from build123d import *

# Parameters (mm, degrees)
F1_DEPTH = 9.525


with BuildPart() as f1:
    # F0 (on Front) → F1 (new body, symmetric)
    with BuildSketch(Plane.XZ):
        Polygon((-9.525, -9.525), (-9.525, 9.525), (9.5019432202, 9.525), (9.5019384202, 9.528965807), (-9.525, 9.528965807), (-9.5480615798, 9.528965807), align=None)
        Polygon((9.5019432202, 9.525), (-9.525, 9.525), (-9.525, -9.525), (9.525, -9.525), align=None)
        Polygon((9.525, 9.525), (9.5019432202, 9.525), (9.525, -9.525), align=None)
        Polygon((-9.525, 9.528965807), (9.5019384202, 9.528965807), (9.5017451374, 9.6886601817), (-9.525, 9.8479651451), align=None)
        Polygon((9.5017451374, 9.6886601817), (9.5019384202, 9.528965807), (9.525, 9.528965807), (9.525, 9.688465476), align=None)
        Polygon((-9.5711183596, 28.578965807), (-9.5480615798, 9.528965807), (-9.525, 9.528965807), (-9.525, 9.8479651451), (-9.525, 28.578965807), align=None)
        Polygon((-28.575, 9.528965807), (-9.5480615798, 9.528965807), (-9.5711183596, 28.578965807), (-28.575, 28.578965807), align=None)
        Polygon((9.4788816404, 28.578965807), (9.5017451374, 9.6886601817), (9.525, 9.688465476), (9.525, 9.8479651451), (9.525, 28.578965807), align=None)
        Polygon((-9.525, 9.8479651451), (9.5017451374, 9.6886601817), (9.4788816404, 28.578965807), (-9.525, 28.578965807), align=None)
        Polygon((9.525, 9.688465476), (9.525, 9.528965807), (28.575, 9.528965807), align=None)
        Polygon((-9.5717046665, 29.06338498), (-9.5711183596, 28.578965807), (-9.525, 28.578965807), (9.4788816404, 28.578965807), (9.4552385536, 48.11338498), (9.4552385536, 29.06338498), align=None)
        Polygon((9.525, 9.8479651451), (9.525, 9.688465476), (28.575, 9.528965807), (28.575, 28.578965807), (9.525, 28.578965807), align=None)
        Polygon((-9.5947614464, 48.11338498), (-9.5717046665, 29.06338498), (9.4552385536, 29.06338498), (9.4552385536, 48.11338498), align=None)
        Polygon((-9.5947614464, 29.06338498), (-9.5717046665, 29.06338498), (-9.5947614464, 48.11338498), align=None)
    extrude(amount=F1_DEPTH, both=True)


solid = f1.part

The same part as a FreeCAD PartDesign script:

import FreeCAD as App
import Part
import Sketcher

V = App.Vector
Q = App.Units.Quantity

doc = App.newDocument("Part")
body = doc.addObject("PartDesign::Body", "Body")

# Sketch on XZ plane
sketch1 = body.newObject("Sketcher::SketchObject", "Sketch")
sketch1.AttachmentSupport = (doc.getObject("XZ_Plane"), [""])
sketch1.MapMode = "FlatFace"
sketch1.addGeometry([
    Part.LineSegment(V(9.5019, 9.525, 0), V(9.5019, 9.529, 0)),  # 0
    Part.LineSegment(V(9.5019, 9.529, 0), V(28.575, 9.529, 0)),  # 1
    Part.LineSegment(V(28.575, 9.529, 0), V(28.575, 28.579, 0)),  # 2
    Part.LineSegment(V(28.575, 28.579, 0), V(9.4789, 28.579, 0)),  # 3
    Part.LineSegment(V(9.4789, 28.579, 0), V(9.4552, 48.1134, 0)),  # 4
    Part.LineSegment(V(9.4552, 48.1134, 0), V(-9.5948, 48.1134, 0)),  # 5
    Part.LineSegment(V(-9.5948, 48.1134, 0), V(-9.5948, 29.0634, 0)),  # 6
    Part.LineSegment(V(-9.5948, 29.0634, 0), V(-9.5717, 29.0634, 0)),  # 7
    Part.LineSegment(V(-9.5717, 29.0634, 0), V(-9.5711, 28.579, 0)),  # 8
    Part.LineSegment(V(-9.5711, 28.579, 0), V(-28.575, 28.579, 0)),  # 9
    Part.LineSegment(V(-28.575, 28.579, 0), V(-28.575, 9.529, 0)),  # 10
    Part.LineSegment(V(-28.575, 9.529, 0), V(-9.5481, 9.529, 0)),  # 11
    Part.LineSegment(V(-9.5481, 9.529, 0), V(-9.525, -9.525, 0)),  # 12
    Part.LineSegment(V(-9.525, -9.525, 0), V(9.525, -9.525, 0)),  # 13
    Part.LineSegment(V(9.525, -9.525, 0), V(9.525, 9.525, 0)),  # 14
    Part.LineSegment(V(9.525, 9.525, 0), V(9.5019, 9.525, 0)),  # 15
], False)
sketch1.addConstraint([
    Sketcher.Constraint("Coincident", 0, 2, 1, 1),
    Sketcher.Constraint("Coincident", 1, 2, 2, 1),
    Sketcher.Constraint("Coincident", 2, 2, 3, 1),
    Sketcher.Constraint("Coincident", 3, 2, 4, 1),
    Sketcher.Constraint("Coincident", 4, 2, 5, 1),
    Sketcher.Constraint("Coincident", 5, 2, 6, 1),
    Sketcher.Constraint("Coincident", 6, 2, 7, 1),
    Sketcher.Constraint("Coincident", 7, 2, 8, 1),
    Sketcher.Constraint("Coincident", 8, 2, 9, 1),
    Sketcher.Constraint("Coincident", 9, 2, 10, 1),
    Sketcher.Constraint("Coincident", 10, 2, 11, 1),
    Sketcher.Constraint("Coincident", 11, 2, 12, 1),
    Sketcher.Constraint("Coincident", 12, 2, 13, 1),
    Sketcher.Constraint("Coincident", 13, 2, 14, 1),
    Sketcher.Constraint("Coincident", 14, 2, 15, 1),
    Sketcher.Constraint("Coincident", 15, 2, 0, 1),
    Sketcher.Constraint("Horizontal", 1),
    Sketcher.Constraint("Vertical", 2),
    Sketcher.Constraint("Horizontal", 3),
    Sketcher.Constraint("Horizontal", 5),
    Sketcher.Constraint("Vertical", 6),
    Sketcher.Constraint("Horizontal", 7),
    Sketcher.Constraint("Horizontal", 9),
    Sketcher.Constraint("Vertical", 10),
    Sketcher.Constraint("Horizontal", 11),
    Sketcher.Constraint("Horizontal", 13),
    Sketcher.Constraint("Vertical", 14),
    Sketcher.Constraint("Horizontal", 15),
    Sketcher.Constraint("Symmetric", 12, 2, 14, 2, -1, 1),
    Sketcher.Constraint("Symmetric", 2, 2, 9, 2, -2),
    Sketcher.Constraint("Parallel", 0, 4),
    Sketcher.Constraint("Parallel", 4, 8),
    Sketcher.Constraint("Parallel", 8, 12),
    Sketcher.Constraint("Horizontal", 1, 2, 10, 2),
    Sketcher.Constraint("Equal", 5, 13),
    Sketcher.Constraint("Equal", 7, 15),
    Sketcher.Constraint("Equal", 13, 2),
    Sketcher.Constraint("Equal", 2, 6),
    Sketcher.Constraint("Equal", 10, 14),
    Sketcher.Constraint("DistanceX", 5, 2, 5, 1, Q("0.75 in")),
    Sketcher.Constraint("DistanceX", 8, 2, 3, 2, Q("0.75 in")),
    Sketcher.Constraint("DistanceX", 10, 2, 12, 2, Q("0.75 in")),
    Sketcher.Constraint("DistanceX", 1, 1, 1, 2, Q("19.073062 mm")),
    Sketcher.Constraint("DistanceX", 3, 2, 3, 1, Q("19.096118 mm")),
    Sketcher.Constraint("Distance", 8, Q("0.48442 mm")),
    Sketcher.Constraint("Distance", 12, Q("19.05398 mm")),
])
pad1 = body.newObject("PartDesign::Pad", "Pad")
pad1.Profile = sketch1
pad1.Length = Q("0.75 in")
pad1.Midplane = True

doc.recompute()
